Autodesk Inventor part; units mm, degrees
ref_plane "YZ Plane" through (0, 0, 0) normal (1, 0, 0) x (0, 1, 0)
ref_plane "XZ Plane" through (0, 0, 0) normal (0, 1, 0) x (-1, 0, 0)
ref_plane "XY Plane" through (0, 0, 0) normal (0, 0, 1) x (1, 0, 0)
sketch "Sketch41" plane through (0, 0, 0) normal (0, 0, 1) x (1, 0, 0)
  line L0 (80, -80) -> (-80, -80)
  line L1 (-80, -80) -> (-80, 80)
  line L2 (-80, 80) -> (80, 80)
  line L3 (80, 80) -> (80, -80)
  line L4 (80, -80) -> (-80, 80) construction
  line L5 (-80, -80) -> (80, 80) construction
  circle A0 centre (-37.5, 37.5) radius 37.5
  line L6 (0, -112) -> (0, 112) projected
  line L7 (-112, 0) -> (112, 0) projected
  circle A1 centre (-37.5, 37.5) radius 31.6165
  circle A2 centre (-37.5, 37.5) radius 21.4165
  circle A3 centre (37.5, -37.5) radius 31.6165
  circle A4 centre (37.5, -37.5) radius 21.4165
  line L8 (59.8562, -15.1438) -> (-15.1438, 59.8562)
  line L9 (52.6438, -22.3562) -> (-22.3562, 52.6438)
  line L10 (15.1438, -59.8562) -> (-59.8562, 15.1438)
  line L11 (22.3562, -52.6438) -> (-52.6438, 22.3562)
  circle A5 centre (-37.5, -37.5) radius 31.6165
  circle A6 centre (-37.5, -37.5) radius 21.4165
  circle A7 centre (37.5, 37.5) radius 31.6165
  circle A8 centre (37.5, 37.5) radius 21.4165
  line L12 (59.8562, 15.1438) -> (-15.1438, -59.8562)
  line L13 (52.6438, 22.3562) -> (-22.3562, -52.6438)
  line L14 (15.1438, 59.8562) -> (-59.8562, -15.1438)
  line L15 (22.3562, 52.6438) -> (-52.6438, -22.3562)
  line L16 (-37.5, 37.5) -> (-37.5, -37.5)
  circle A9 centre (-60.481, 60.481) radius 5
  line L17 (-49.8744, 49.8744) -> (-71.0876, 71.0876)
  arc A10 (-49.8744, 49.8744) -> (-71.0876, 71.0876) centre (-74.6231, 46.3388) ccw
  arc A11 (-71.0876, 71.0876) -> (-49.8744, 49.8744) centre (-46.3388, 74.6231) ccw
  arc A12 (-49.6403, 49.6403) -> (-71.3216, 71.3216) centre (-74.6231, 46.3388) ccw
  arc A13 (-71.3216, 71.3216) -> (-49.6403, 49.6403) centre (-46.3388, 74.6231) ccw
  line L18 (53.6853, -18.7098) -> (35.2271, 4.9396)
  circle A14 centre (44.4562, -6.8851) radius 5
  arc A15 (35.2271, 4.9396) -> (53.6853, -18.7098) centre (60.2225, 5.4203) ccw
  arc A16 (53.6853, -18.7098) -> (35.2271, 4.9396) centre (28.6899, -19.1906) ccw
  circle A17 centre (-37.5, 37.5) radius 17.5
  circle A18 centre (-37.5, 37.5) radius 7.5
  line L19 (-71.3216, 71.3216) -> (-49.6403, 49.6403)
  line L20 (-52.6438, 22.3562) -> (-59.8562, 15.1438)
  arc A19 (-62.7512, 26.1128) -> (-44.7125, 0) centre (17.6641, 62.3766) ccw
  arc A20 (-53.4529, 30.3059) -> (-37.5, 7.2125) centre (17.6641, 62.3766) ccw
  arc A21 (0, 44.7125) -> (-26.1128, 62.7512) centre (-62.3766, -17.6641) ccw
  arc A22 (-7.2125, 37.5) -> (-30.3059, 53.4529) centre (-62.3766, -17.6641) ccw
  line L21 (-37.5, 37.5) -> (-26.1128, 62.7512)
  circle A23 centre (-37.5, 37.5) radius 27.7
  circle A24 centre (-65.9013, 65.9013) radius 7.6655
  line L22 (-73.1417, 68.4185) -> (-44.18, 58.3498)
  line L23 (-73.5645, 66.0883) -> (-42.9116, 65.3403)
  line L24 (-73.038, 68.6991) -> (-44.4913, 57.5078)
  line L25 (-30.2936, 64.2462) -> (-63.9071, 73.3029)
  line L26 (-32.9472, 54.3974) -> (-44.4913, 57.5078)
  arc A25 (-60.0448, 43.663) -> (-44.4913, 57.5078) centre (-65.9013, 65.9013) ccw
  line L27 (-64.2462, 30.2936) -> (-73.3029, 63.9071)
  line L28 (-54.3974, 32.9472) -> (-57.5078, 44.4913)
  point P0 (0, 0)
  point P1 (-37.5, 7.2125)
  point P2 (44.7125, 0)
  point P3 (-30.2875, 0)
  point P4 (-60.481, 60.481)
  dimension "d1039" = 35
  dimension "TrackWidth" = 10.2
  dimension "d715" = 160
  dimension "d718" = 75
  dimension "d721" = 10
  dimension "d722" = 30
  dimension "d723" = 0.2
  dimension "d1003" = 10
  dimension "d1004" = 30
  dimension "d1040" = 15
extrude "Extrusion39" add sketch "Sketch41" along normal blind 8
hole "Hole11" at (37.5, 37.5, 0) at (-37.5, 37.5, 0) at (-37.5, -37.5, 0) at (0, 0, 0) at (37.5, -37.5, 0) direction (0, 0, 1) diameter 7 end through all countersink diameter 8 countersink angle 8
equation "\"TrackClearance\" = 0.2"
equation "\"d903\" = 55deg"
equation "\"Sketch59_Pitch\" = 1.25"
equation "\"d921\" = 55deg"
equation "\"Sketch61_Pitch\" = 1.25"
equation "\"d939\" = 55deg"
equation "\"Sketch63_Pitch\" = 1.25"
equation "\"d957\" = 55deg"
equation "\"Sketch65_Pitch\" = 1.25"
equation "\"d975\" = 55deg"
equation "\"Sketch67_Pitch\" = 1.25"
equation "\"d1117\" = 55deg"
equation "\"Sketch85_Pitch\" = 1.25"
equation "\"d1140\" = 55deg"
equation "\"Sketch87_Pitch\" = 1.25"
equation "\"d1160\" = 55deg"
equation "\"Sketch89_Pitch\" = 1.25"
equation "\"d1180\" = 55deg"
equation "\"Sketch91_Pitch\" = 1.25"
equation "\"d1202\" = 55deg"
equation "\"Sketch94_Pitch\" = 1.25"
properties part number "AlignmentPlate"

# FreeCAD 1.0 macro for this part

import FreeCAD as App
import Part
import Sketcher
from FreeCAD import Vector


def add_polygon(sketch, points):
    """Adds a closed chain of lines whose ends are joined by coincident constraints."""
    first, n = sketch.GeometryCount, len(points)
    for a, b in zip(points, points[1:] + points[:1]):
        sketch.addGeometry(Part.LineSegment(App.Vector(*a, 0), App.Vector(*b, 0)), False)
    for i in range(n):
        sketch.addConstraint(Sketcher.Constraint("Coincident", first + i, 2, first + (i + 1) % n, 1))

doc = App.newDocument("Part")
body = doc.addObject("PartDesign::Body", "Body")

# Sketch on XY plane
sketch1 = body.newObject("Sketcher::SketchObject", "Sketch")
sketch1.AttachmentSupport = (doc.getObject("XY_Plane"), [""])
sketch1.MapMode = "FlatFace"
add_polygon(sketch1, [(80, -80), (80, 80), (-80, 80), (-80, -80)])  # lines 0-3
sketch1.addConstraint([
    Sketcher.Constraint("Vertical", 0),
    Sketcher.Constraint("Horizontal", 1),
    Sketcher.Constraint("Vertical", 2),
    Sketcher.Constraint("Horizontal", 3),
    Sketcher.Constraint("Symmetric", 0, 2, 2, 2, -1, 1),
    Sketcher.Constraint("Equal", 3, 0),
    Sketcher.Constraint("DistanceX", 1, 2, 1, 1, 160.0),
])
pad1 = body.newObject("PartDesign::Pad", "Pad")
pad1.Profile = sketch1
pad1.Length = 8

# Sketch on XY plane
sketch2 = body.newObject("Sketcher::SketchObject", "Sketch001")
sketch2.AttachmentSupport = (doc.getObject("XY_Plane"), [""])
sketch2.MapMode = "FlatFace"
sketch2.addGeometry([
    Part.Circle(Vector(37.5, 37.5, 0), Vector(0, 0, 1), 3.5),  # 0
    Part.Circle(Vector(-37.5, 37.5, 0), Vector(0, 0, 1), 3.5),  # 1
    Part.Circle(Vector(-37.5, -37.5, 0), Vector(0, 0, 1), 3.5),  # 2
    Part.Circle(Vector(0, 0, 0), Vector(0, 0, 1), 3.5),  # 3
    Part.Circle(Vector(37.5, -37.5, 0), Vector(0, 0, 1), 3.5),  # 4
], False)
sketch2.addConstraint([
    Sketcher.Constraint("Coincident", 3, 3, -1, 1),
    Sketcher.Constraint("Equal", 0, 1),
    Sketcher.Constraint("Equal", 1, 2),
    Sketcher.Constraint("Equal", 2, 3),
    Sketcher.Constraint("Equal", 3, 4),
    Sketcher.Constraint("Symmetric", 0, 3, 2, 3, -1, 1),
    Sketcher.Constraint("Symmetric", 1, 3, 4, 3, -1, 1),
    Sketcher.Constraint("Symmetric", 0, 3, 1, 3, -2),
    Sketcher.Constraint("Diameter", 0, 7.0),
    Sketcher.Constraint("DistanceX", 1, 3, 0, 3, 75.0),
    Sketcher.Constraint("DistanceY", 2, 3, 1, 3, 75.0),
])
doc.recompute()
hole = body.newObject("PartDesign::Hole", "Hole")
hole.Profile = sketch2
hole.ThreadType = "None"
hole.Diameter = 7
hole.DepthType = "ThroughAll"
hole.HoleCutType = "Countersink"
hole.HoleCutDiameter = 8
hole.HoleCutCountersinkAngle = 8
hole.Reversed = True

doc.recompute()
